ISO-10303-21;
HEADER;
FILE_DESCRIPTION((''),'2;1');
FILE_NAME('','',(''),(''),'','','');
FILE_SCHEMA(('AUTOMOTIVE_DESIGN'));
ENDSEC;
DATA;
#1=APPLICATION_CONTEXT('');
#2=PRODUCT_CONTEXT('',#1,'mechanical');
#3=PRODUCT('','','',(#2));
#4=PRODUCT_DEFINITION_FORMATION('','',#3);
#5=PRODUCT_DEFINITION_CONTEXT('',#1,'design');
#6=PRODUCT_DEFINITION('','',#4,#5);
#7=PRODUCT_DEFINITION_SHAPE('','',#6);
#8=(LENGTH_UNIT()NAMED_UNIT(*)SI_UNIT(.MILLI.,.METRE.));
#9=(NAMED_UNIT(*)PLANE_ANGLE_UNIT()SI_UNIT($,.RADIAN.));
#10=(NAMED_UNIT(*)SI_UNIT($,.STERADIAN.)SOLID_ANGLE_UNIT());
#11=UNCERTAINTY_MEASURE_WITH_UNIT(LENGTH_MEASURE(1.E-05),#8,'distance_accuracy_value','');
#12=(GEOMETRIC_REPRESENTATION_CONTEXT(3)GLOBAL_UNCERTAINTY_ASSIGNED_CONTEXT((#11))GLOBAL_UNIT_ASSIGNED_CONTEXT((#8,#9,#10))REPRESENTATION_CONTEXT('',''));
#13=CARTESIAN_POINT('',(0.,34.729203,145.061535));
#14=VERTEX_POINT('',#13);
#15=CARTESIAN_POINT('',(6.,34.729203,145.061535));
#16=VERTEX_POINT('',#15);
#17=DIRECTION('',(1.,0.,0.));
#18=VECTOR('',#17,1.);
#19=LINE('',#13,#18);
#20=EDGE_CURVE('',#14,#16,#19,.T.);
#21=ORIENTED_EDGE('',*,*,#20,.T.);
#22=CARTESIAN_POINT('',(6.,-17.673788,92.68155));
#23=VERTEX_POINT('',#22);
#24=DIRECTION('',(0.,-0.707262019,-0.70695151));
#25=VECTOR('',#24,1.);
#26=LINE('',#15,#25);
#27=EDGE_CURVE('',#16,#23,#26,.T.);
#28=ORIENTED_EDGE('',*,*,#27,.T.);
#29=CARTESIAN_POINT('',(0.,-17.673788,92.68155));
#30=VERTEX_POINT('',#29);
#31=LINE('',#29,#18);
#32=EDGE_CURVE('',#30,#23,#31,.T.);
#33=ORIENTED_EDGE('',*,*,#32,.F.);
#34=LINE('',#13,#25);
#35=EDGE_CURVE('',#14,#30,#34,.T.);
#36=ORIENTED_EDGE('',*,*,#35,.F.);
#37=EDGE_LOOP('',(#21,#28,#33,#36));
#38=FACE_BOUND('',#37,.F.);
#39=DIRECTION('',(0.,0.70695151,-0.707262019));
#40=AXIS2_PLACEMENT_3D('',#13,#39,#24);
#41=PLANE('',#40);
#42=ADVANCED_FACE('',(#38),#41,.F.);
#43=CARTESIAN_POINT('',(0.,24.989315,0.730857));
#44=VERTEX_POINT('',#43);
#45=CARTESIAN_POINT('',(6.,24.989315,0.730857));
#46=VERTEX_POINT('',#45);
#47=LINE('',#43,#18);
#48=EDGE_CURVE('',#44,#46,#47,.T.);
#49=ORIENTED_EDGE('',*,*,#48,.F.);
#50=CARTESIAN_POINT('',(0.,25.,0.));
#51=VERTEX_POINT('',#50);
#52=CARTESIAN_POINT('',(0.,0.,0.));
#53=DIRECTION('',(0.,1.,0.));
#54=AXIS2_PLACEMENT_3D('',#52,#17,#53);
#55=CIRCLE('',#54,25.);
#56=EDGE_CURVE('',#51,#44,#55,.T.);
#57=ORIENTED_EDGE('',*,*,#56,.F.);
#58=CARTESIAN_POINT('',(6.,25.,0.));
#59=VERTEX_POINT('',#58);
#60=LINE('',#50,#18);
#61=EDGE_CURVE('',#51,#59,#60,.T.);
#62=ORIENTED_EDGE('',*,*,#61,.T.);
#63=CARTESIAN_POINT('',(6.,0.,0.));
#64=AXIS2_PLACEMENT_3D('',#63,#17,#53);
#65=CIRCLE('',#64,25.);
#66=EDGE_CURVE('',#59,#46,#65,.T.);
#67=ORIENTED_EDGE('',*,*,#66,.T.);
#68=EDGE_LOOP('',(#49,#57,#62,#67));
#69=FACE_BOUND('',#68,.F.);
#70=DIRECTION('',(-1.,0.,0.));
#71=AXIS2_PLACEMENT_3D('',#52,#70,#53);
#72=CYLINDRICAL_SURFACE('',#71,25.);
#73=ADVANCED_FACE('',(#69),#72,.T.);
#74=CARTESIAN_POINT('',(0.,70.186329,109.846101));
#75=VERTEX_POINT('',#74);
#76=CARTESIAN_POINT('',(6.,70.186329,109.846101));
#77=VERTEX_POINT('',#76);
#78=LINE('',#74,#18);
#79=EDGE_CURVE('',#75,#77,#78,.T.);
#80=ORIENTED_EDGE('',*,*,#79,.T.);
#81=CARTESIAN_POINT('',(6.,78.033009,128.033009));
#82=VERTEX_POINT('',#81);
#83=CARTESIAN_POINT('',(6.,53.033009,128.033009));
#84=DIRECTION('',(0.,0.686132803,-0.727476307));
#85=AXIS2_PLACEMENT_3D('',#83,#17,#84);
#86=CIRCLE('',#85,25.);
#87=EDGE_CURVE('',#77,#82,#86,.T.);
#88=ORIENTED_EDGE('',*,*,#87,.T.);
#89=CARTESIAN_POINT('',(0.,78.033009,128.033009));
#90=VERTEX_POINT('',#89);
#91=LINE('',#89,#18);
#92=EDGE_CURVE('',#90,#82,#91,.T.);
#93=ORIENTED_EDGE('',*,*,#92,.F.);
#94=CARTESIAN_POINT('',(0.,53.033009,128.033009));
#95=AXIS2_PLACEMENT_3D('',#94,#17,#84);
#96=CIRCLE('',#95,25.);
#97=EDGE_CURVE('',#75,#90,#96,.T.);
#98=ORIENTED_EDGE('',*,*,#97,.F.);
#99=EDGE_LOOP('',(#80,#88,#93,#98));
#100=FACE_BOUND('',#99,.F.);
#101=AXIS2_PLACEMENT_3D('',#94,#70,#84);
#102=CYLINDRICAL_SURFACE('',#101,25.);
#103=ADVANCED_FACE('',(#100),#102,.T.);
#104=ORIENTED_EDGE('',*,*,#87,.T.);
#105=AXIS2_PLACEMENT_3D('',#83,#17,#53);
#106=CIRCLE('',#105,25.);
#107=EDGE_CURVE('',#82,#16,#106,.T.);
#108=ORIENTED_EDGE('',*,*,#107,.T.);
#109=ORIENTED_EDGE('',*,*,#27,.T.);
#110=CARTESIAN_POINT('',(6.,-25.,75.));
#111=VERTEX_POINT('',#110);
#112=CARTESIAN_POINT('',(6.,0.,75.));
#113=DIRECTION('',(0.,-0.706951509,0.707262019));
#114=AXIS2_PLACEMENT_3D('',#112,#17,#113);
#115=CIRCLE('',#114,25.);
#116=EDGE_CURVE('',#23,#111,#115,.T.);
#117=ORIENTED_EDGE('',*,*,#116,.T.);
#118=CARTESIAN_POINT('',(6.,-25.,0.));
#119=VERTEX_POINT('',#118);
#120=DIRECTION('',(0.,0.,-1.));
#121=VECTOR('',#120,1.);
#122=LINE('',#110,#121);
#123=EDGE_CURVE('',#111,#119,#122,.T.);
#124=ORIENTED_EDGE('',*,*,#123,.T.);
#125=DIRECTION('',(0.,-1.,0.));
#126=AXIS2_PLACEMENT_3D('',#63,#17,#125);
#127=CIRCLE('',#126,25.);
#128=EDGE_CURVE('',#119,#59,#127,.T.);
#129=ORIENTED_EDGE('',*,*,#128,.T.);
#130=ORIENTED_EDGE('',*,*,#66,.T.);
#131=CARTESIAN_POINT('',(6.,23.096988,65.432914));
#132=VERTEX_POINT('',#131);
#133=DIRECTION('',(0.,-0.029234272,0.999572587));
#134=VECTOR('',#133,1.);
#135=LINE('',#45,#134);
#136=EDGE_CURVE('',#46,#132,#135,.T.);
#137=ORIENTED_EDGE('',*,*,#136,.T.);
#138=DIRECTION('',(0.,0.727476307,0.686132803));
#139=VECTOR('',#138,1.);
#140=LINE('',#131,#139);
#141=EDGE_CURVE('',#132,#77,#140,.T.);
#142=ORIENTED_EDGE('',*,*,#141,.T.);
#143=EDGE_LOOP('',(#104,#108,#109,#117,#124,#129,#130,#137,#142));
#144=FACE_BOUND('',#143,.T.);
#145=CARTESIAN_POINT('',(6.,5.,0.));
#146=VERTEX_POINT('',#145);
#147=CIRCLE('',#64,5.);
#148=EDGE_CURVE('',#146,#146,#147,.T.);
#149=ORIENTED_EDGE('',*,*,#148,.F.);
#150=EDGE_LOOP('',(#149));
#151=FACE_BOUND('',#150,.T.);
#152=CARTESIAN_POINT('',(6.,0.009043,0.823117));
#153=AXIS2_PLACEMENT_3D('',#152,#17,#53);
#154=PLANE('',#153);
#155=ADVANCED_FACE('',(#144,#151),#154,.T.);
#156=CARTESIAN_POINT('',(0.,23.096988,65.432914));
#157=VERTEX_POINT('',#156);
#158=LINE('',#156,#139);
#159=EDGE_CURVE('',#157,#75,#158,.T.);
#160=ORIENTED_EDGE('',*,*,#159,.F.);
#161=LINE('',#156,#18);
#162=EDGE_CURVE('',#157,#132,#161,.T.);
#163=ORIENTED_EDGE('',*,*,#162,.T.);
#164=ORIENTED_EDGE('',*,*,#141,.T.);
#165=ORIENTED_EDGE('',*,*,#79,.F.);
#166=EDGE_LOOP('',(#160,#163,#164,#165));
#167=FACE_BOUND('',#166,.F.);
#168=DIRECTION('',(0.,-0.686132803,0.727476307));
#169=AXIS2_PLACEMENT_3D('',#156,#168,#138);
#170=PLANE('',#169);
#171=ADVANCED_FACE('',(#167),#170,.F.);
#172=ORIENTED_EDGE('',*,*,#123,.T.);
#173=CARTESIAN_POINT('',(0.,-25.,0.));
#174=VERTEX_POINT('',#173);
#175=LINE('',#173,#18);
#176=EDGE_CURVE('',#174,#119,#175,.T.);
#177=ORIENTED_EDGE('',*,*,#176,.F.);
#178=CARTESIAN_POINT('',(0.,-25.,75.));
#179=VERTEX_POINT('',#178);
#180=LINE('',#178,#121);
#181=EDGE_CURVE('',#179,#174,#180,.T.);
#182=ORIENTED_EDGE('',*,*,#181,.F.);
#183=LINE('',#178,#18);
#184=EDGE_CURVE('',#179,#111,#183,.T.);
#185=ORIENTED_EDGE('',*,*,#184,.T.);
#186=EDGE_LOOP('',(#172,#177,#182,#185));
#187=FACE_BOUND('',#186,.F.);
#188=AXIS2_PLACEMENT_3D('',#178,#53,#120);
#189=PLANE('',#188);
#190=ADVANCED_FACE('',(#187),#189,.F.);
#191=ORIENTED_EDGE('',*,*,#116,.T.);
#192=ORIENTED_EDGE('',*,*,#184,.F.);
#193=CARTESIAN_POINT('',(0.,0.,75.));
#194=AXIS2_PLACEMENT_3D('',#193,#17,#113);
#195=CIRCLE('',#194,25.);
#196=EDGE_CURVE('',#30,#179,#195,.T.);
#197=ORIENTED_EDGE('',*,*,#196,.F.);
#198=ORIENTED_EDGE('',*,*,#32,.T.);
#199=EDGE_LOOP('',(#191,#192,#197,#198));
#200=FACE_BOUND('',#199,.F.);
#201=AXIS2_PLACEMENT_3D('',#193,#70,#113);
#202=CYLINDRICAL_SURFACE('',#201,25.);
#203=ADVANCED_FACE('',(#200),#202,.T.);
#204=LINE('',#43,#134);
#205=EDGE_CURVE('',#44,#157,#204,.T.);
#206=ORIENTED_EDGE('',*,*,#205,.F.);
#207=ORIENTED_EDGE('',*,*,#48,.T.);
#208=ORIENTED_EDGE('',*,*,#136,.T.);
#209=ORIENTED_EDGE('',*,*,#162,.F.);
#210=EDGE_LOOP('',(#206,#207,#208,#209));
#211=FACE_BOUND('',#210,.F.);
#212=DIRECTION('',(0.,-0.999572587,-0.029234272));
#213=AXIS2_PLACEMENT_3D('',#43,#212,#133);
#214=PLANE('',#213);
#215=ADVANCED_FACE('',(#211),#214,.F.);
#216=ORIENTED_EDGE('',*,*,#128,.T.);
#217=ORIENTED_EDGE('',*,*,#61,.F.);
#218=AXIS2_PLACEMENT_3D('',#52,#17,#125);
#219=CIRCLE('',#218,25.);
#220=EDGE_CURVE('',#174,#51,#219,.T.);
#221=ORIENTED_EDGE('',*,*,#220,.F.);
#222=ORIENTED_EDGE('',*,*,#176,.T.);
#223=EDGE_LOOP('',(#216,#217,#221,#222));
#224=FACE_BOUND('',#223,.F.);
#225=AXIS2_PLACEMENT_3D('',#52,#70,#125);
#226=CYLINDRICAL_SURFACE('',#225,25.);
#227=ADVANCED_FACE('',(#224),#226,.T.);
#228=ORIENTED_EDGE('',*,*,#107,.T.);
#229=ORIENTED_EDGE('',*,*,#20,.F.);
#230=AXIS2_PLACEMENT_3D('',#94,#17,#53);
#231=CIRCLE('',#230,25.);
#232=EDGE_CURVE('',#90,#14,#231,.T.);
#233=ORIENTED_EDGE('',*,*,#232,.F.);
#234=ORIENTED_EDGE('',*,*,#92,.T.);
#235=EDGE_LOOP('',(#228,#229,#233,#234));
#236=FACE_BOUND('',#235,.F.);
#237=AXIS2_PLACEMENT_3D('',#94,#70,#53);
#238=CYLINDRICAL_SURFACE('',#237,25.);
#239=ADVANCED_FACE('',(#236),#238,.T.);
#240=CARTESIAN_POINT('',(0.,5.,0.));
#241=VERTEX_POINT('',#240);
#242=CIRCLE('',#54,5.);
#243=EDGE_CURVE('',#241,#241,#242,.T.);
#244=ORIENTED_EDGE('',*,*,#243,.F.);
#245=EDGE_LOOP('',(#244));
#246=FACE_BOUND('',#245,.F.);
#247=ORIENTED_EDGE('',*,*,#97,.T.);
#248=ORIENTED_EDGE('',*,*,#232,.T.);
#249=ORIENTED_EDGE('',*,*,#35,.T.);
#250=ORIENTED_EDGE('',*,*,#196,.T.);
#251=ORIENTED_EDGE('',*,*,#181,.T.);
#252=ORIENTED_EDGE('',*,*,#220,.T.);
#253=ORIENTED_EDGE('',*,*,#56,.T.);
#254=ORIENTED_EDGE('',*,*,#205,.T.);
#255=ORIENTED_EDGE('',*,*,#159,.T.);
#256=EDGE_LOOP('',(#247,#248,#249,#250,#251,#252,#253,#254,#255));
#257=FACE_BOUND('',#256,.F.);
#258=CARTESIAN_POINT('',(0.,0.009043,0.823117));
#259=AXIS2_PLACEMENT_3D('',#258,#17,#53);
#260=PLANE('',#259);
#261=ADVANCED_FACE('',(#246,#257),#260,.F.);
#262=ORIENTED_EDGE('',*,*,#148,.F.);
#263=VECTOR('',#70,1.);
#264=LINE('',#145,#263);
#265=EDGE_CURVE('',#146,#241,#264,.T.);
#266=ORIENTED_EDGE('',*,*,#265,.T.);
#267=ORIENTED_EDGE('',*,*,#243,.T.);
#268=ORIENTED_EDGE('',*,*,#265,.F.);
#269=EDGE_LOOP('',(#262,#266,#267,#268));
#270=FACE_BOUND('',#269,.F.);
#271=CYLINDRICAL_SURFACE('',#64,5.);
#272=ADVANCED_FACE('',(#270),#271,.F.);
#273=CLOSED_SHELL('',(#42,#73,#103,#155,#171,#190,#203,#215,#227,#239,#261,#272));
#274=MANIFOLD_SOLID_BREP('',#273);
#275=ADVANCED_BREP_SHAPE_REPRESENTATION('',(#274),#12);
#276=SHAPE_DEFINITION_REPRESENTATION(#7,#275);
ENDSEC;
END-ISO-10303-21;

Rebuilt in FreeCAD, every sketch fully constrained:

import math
import FreeCAD as App
import Part
import Sketcher

V = App.Vector
Q = App.Units.Quantity

doc = App.newDocument("Part")
body = doc.addObject("PartDesign::Body", "Body")

sketch1 = doc.addObject("Sketcher::SketchObject", "Sketch")
body.addObject(sketch1)
sketch1.AttachmentSupport = (doc.YZ_Plane, [""])
sketch1.MapMode = "FlatFace"
sketch1.addGeometry(Part.ArcOfCircle(Part.Circle(V(0, 0, 0), V(0, 0, 1), 25), math.radians(180), math.radians(360)), False)
sketch1.addGeometry(Part.ArcOfCircle(Part.Circle(V(0, 0, 0), V(0, 0, 1), 25), math.radians(0), math.radians(1.675239)), False)
sketch1.addGeometry(Part.LineSegment(V(24.989315, 0.730857, 0), V(23.096988, 65.432914, 0)), False)
sketch1.addGeometry(Part.LineSegment(V(23.096988, 65.432914, 0), V(70.186329, 109.846101, 0)), False)
sketch1.addGeometry(Part.ArcOfCircle(Part.Circle(V(53.033009, 128.033009, 0), V(0, 0, 1), 25), math.radians(-46.675239), math.radians(0)), False)
sketch1.addGeometry(Part.ArcOfCircle(Part.Circle(V(53.033009, 128.033009, 0), V(0, 0, 1), 25), math.radians(0), math.radians(137.067126)), False)
sketch1.addGeometry(Part.LineSegment(V(34.729203, 145.061535, 0), V(-17.673788, 92.68155, 0)), False)
sketch1.addGeometry(Part.ArcOfCircle(Part.Circle(V(0, 75, 0), V(0, 0, 1), 25), math.radians(134.98742), math.radians(180)), False)
sketch1.addGeometry(Part.LineSegment(V(-25, 75, 0), V(-25, 0, 0)), False)
sketch1.addConstraint(Sketcher.Constraint("Coincident", 0, 2, 1, 1))
sketch1.addConstraint(Sketcher.Constraint("Coincident", 1, 2, 2, 1))
sketch1.addConstraint(Sketcher.Constraint("Coincident", 2, 2, 3, 1))
sketch1.addConstraint(Sketcher.Constraint("Coincident", 3, 2, 4, 1))
sketch1.addConstraint(Sketcher.Constraint("Coincident", 4, 2, 5, 1))
sketch1.addConstraint(Sketcher.Constraint("Coincident", 5, 2, 6, 1))
sketch1.addConstraint(Sketcher.Constraint("Coincident", 6, 2, 7, 1))
sketch1.addConstraint(Sketcher.Constraint("Coincident", 7, 2, 8, 1))
sketch1.addConstraint(Sketcher.Constraint("Coincident", 8, 2, 0, 1))
sketch1.addConstraint(Sketcher.Constraint("Vertical", 8))
sketch1.addConstraint(Sketcher.Constraint("Coincident", 0, 3, -1, 1))
sketch1.addConstraint(Sketcher.Constraint("Coincident", 1, 3, -1, 1))
sketch1.addConstraint(Sketcher.Constraint("Coincident", 5, 3, 4, 3))
sketch1.addConstraint(Sketcher.Constraint("PointOnObject", 7, 3, -2))
sketch1.addConstraint(Sketcher.Constraint("PointOnObject", 0, 2, -1))
sketch1.addConstraint(Sketcher.Constraint("PointOnObject", 8, 2, -1))
sketch1.addConstraint(Sketcher.Constraint("Radius", 0, Q("25 mm")))
sketch1.addConstraint(Sketcher.Constraint("Radius", 4, Q("25 mm")))
sketch1.addConstraint(Sketcher.Constraint("DistanceY", 8, 2, 8, 1, Q("75 mm")))
sketch1.addConstraint(Sketcher.Constraint("DistanceY", -1, 1, 7, 3, Q("75 mm")))
sketch1.addConstraint(Sketcher.Constraint("DistanceY", -1, 1, 3, 2, Q("109.846101 mm")))
sketch1.addConstraint(Sketcher.Constraint("DistanceX", -1, 1, 4, 3, Q("53.033009 mm")))
sketch1.addConstraint(Sketcher.Constraint("DistanceY", -1, 1, 4, 3, Q("128.033009 mm")))
sketch1.addConstraint(Sketcher.Constraint("DistanceX", -1, 1, 2, 2, Q("23.096988 mm")))
sketch1.addConstraint(Sketcher.Constraint("DistanceY", -1, 1, 4, 2, Q("128.033009 mm")))
sketch1.addConstraint(Sketcher.Constraint("DistanceY", -1, 1, 6, 2, Q("92.68155 mm")))
sketch1.addConstraint(Sketcher.Constraint("DistanceY", 1, 2, 4, 3, Q("127.302152 mm")))
sketch1.addConstraint(Sketcher.Constraint("DistanceX", 6, 2, 5, 2, Q("52.402991 mm")))
sketch1.addConstraint(Sketcher.Constraint("Distance", 2, Q("64.729724 mm")))
pad1 = doc.addObject("PartDesign::Pad", "Pad")
body.addObject(pad1)
pad1.Profile = sketch1
pad1.Length = 6

sketch2 = doc.addObject("Sketcher::SketchObject", "Sketch001")
body.addObject(sketch2)
sketch2.AttachmentSupport = (doc.YZ_Plane, [""])
sketch2.MapMode = "FlatFace"
sketch2.AttachmentOffset = App.Placement(V(0, 0, 6), App.Rotation())
sketch2.addGeometry(Part.Circle(V(0, 0, 0), V(0, 0, 1), 5), False)
sketch2.addConstraint(Sketcher.Constraint("Coincident", 0, 3, -1, 1))
sketch2.addConstraint(Sketcher.Constraint("Diameter", 0, Q("10 mm")))
pocket1 = doc.addObject("PartDesign::Pocket", "Pocket")
body.addObject(pocket1)
pocket1.Profile = sketch2
pocket1.Length = 6

doc.recompute()
